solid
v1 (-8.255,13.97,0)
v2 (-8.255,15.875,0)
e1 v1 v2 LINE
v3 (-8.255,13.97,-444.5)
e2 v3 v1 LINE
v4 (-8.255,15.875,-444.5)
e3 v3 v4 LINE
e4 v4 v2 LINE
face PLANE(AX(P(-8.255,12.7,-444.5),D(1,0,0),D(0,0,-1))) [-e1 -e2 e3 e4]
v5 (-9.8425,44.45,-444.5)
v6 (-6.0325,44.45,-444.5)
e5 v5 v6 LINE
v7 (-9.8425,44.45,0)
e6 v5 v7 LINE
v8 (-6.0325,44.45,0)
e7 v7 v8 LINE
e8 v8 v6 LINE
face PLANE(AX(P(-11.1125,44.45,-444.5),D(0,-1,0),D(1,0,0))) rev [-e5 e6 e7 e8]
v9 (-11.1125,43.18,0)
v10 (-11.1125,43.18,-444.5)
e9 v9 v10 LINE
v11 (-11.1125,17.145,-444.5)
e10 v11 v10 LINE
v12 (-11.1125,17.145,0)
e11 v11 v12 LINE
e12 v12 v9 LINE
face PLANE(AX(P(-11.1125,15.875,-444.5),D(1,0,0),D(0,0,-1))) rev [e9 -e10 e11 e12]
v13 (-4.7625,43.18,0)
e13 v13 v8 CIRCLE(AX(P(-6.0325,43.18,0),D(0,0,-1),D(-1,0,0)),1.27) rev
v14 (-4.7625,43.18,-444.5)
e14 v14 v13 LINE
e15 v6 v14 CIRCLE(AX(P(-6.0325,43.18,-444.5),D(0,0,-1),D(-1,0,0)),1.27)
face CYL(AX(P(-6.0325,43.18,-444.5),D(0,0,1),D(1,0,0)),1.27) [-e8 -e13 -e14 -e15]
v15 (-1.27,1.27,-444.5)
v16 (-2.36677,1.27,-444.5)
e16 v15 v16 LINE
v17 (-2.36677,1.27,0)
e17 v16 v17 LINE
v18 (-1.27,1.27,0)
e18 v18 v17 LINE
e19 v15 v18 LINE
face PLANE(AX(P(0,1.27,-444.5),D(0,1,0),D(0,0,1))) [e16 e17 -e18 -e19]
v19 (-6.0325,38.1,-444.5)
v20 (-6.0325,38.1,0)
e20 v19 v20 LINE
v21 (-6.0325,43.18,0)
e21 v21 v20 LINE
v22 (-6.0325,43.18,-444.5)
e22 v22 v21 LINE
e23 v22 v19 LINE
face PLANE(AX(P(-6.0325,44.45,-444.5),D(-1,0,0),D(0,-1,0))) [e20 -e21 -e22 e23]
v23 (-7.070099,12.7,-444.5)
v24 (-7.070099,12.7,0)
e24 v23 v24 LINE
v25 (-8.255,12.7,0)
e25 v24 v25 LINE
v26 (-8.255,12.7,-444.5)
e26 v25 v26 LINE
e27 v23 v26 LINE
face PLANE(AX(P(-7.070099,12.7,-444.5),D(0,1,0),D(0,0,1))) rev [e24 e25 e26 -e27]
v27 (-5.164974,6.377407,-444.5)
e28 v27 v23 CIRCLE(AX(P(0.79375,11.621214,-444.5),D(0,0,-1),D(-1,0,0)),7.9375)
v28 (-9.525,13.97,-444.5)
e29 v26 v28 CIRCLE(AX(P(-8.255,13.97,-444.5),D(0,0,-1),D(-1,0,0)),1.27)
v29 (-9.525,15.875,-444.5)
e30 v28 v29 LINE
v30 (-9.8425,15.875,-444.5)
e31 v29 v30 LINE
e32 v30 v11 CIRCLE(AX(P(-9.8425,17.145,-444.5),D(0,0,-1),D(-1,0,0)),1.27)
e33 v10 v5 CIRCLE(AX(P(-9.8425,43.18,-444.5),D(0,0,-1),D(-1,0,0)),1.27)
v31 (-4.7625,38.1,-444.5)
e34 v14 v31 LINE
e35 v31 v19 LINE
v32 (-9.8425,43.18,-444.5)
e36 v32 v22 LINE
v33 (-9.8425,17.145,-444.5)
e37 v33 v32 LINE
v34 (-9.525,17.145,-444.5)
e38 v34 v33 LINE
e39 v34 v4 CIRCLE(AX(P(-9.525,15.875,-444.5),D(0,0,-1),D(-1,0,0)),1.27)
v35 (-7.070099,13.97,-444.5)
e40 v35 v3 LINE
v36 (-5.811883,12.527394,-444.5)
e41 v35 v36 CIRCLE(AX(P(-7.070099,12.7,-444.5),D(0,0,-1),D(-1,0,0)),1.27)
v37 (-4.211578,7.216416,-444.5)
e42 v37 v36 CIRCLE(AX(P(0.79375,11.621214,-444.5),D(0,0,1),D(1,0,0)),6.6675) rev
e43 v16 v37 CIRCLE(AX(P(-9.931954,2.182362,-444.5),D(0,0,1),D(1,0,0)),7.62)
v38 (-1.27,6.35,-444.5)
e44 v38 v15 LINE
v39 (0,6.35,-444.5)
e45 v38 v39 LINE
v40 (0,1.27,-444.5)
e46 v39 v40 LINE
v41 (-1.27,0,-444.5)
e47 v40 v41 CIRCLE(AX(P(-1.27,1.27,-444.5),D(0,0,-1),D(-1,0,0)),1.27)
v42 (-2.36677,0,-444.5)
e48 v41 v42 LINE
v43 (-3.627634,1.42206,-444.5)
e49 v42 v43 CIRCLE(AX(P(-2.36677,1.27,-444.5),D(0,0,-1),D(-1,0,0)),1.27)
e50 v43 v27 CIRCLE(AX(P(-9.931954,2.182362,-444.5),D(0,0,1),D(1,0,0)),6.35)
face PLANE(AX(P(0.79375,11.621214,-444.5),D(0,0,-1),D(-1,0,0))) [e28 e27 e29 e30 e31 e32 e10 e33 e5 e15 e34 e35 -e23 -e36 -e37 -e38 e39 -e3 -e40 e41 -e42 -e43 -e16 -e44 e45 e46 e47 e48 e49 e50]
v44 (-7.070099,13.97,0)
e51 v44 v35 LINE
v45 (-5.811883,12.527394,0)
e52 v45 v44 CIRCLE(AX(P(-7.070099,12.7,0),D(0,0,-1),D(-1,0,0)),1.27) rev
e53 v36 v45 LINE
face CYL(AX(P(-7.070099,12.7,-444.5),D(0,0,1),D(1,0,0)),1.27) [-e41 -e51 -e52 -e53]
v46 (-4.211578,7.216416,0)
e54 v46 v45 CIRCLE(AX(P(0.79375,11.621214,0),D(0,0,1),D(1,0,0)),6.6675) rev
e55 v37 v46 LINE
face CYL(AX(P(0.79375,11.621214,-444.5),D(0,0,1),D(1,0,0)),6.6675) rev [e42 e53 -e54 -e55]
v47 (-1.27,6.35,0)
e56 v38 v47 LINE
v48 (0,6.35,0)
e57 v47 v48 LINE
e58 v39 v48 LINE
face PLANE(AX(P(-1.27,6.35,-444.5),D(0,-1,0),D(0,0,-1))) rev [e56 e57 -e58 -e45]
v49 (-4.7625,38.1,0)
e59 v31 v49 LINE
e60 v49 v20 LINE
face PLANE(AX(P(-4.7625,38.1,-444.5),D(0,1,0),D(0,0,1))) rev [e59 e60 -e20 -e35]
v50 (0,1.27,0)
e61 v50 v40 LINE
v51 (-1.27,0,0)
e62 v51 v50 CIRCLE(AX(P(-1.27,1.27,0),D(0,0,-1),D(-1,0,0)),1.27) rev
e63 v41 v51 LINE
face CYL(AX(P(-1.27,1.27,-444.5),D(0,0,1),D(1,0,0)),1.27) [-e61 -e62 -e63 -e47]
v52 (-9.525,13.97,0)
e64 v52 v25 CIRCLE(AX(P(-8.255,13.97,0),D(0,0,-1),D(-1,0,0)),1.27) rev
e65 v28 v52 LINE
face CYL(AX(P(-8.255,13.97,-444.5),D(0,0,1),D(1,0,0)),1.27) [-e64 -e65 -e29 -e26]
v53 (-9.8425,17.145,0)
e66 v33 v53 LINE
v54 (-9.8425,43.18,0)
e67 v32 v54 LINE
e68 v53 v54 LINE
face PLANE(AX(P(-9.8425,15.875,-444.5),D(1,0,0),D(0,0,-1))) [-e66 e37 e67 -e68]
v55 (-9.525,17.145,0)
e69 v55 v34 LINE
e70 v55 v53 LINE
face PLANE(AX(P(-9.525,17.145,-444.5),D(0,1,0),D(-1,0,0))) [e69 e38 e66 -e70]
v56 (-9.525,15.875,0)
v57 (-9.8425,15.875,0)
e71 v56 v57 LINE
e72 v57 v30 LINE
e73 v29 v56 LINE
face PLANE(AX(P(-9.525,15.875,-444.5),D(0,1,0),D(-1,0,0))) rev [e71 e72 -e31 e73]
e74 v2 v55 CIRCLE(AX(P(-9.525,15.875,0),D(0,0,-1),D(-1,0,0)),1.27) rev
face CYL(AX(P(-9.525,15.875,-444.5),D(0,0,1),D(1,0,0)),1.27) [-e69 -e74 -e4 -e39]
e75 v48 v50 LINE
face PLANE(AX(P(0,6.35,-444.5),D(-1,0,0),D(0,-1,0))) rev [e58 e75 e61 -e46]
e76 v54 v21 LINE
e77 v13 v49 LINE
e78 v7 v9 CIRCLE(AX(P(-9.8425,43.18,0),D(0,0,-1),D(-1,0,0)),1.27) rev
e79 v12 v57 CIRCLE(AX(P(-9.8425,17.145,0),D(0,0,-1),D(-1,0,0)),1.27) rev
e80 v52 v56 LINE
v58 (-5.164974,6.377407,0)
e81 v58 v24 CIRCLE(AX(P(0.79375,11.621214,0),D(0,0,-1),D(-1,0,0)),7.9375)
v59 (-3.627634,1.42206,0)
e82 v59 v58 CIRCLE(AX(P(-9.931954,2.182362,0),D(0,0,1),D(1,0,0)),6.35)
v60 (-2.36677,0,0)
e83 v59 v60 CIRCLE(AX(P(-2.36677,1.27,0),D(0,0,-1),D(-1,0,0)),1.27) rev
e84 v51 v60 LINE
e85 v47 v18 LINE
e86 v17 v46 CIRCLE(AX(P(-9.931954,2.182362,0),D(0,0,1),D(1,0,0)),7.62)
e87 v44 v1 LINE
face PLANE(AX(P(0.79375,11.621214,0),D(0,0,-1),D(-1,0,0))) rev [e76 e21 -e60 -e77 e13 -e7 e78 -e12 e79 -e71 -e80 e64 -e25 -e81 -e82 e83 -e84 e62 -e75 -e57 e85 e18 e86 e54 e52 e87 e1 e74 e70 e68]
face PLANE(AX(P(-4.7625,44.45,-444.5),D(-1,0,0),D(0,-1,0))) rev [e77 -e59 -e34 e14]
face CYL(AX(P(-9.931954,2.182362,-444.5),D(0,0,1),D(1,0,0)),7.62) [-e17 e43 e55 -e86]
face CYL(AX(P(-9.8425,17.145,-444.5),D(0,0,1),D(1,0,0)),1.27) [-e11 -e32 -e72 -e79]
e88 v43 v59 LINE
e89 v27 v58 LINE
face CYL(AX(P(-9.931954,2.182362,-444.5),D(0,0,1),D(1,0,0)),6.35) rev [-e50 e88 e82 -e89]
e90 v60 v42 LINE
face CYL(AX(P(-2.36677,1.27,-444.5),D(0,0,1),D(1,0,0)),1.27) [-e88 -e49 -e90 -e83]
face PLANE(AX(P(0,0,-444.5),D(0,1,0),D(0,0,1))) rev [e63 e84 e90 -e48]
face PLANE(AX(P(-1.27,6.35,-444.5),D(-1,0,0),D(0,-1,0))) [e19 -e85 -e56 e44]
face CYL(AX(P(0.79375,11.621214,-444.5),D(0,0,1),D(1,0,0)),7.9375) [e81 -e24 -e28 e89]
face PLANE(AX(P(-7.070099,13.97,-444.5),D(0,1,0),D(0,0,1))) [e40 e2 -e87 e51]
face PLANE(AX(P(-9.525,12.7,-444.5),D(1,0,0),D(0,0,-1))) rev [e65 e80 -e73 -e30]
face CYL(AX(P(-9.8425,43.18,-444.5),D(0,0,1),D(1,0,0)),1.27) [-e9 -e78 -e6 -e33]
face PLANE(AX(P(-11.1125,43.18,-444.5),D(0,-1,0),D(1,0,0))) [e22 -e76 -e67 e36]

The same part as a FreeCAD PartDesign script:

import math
import FreeCAD as App
import Part
import Sketcher
from FreeCAD import Vector
Q = App.Units.Quantity


def edges_at(feature, points):
    """Names of the edges that pass closest to the given points."""
    edges = feature.Shape.Edges
    near = lambda p: min(range(len(edges)), key=lambda i: edges[i].distToShape(Part.Vertex(*p))[0])
    return sorted({f"Edge{near(p) + 1}" for p in points})

doc = App.newDocument("Part")
body = doc.addObject("PartDesign::Body", "Body")

# Sketch on XY plane
sketch1 = doc.addObject("Sketcher::SketchObject", "Sketch")
body.addObject(sketch1)
sketch1.AttachmentSupport = (doc.XY_Plane, [""])
sketch1.MapMode = "FlatFace"
sketch1.addGeometry([
    Part.LineSegment(Vector(0, 0, 0), Vector(0, 6.3, 0)),  # 0
    Part.LineSegment(Vector(0, 6.3, 0), Vector(-1.3, 6.3, 0)),  # 1
    Part.LineSegment(Vector(-1.3, 6.3, 0), Vector(-1.3, 1.3, 0)),  # 2
    Part.LineSegment(Vector(-1.3, 1.3, 0), Vector(-2.4, 1.3, 0)),  # 3
    Part.ArcOfCircle(Part.Circle(Vector(-9.9, 2.2, 0), Vector(0, 0, 1), 7.6), math.radians(-7), math.radians(41)),  # 4
    Part.ArcOfCircle(Part.Circle(Vector(0.8, 11.6, 0), Vector(0, 0, 1), 6.7), math.radians(159), math.radians(221)),  # 5
    Part.LineSegment(Vector(-5.4, 14, 0), Vector(-8.3, 14, 0)),  # 6
    Part.LineSegment(Vector(-8.3, 14, 0), Vector(-8.3, 17.1, 0)),  # 7
    Part.LineSegment(Vector(-8.3, 17.1, 0), Vector(-9.8, 17.1, 0)),  # 8
    Part.LineSegment(Vector(-9.8, 17.1, 0), Vector(-9.8, 43.2, 0)),  # 9
    Part.LineSegment(Vector(-9.8, 43.2, 0), Vector(-6, 43.2, 0)),  # 10
    Part.LineSegment(Vector(-6, 43.2, 0), Vector(-6, 38.1, 0)),  # 11
    Part.LineSegment(Vector(-6, 38.1, 0), Vector(-4.8, 38.1, 0)),  # 12
    Part.LineSegment(Vector(-4.8, 38.1, 0), Vector(-4.8, 44.5, 0)),  # 13
    Part.LineSegment(Vector(-4.8, 44.5, 0), Vector(-11.1, 44.5, 0)),  # 14
    Part.LineSegment(Vector(-11.1, 44.5, 0), Vector(-11.1, 15.9, 0)),  # 15
    Part.LineSegment(Vector(-11.1, 15.9, 0), Vector(-9.5, 15.9, 0)),  # 16
    Part.LineSegment(Vector(-9.5, 15.9, 0), Vector(-9.5, 12.7, 0)),  # 17
    Part.LineSegment(Vector(-9.5, 12.7, 0), Vector(-7.1, 12.7, 0)),  # 18
    Part.ArcOfCircle(Part.Circle(Vector(0.8, 11.6, 0), Vector(0, 0, 1), 7.9), math.radians(172), math.radians(221)),  # 19
    Part.ArcOfCircle(Part.Circle(Vector(-9.9, 2.2, 0), Vector(0, 0, 1), 6.3), math.radians(-20), math.radians(41)),  # 20
    Part.LineSegment(Vector(-4, 0, 0), Vector(0, 0, 0)),  # 21
], False)
sketch1.addConstraint([
    Sketcher.Constraint("Coincident", 0, 2, 1, 1),
    Sketcher.Constraint("Coincident", 1, 2, 2, 1),
    Sketcher.Constraint("Coincident", 2, 2, 3, 1),
    Sketcher.Constraint("Coincident", 3, 2, 4, 1),
    Sketcher.Constraint("Tangent", 4, 2, 5, 2),
    Sketcher.Constraint("Coincident", 5, 1, 6, 1),
    Sketcher.Constraint("Coincident", 6, 2, 7, 1),
    Sketcher.Constraint("Coincident", 7, 2, 8, 1),
    Sketcher.Constraint("Coincident", 8, 2, 9, 1),
    Sketcher.Constraint("Coincident", 9, 2, 10, 1),
    Sketcher.Constraint("Coincident", 10, 2, 11, 1),
    Sketcher.Constraint("Coincident", 11, 2, 12, 1),
    Sketcher.Constraint("Coincident", 12, 2, 13, 1),
    Sketcher.Constraint("Coincident", 13, 2, 14, 1),
    Sketcher.Constraint("Coincident", 14, 2, 15, 1),
    Sketcher.Constraint("Coincident", 15, 2, 16, 1),
    Sketcher.Constraint("Coincident", 16, 2, 17, 1),
    Sketcher.Constraint("Coincident", 17, 2, 18, 1),
    Sketcher.Constraint("Coincident", 18, 2, 19, 1),
    Sketcher.Constraint("Tangent", 19, 2, 20, 2),
    Sketcher.Constraint("Coincident", 20, 1, 21, 1),
    Sketcher.Constraint("Coincident", 21, 2, 0, 1),
    Sketcher.Constraint("Vertical", 0),
    Sketcher.Constraint("Horizontal", 1),
    Sketcher.Constraint("Vertical", 2),
    Sketcher.Constraint("Horizontal", 3),
    Sketcher.Constraint("Horizontal", 6),
    Sketcher.Constraint("Vertical", 7),
    Sketcher.Constraint("Horizontal", 8),
    Sketcher.Constraint("Vertical", 9),
    Sketcher.Constraint("Horizontal", 10),
    Sketcher.Constraint("Vertical", 11),
    Sketcher.Constraint("Horizontal", 12),
    Sketcher.Constraint("Vertical", 13),
    Sketcher.Constraint("Horizontal", 14),
    Sketcher.Constraint("Vertical", 15),
    Sketcher.Constraint("Horizontal", 16),
    Sketcher.Constraint("Vertical", 17),
    Sketcher.Constraint("Horizontal", 18),
    Sketcher.Constraint("Horizontal", 21),
    Sketcher.Constraint("Coincident", 21, 2, -1, 1),
    Sketcher.Constraint("Coincident", 19, 3, 5, 3),
    Sketcher.Constraint("Coincident", 20, 3, 4, 3),
    Sketcher.Constraint("Equal", 1, 12),
    Sketcher.Constraint("Equal", 8, 16),
    Sketcher.Constraint("Equal", 14, 0),
    Sketcher.Constraint("Equal", 2, 11),
    Sketcher.Constraint("Equal", 0, 13),
    Sketcher.Constraint("Equal", 7, 17),
    Sketcher.Constraint("Radius", 4, Q("0.3 in")),
    Sketcher.Constraint("Radius", 20, Q("0.25 in")),
    Sketcher.Constraint("DistanceY", 2, 2, 2, 1, Q("0.2 in")),
    Sketcher.Constraint("Radius", 19, Q("0.3125 in")),
    Sketcher.Constraint("DistanceX", 1, 2, 1, 1, Q("0.05 in")),
    Sketcher.Constraint("DistanceX", 10, 1, 10, 2, Q("0.15 in")),
    Sketcher.Constraint("DistanceX", 14, 2, 14, 1, Q("0.25 in")),
    Sketcher.Constraint("DistanceY", -1, 1, 9, 2, Q("1.7 in")),
    Sketcher.Constraint("DistanceY", -1, 1, 17, 2, Q("0.5 in")),
    Sketcher.Constraint("DistanceY", 1, 2, 5, 1, Q("0.3 in")),
    Sketcher.Constraint("DistanceX", 8, 2, 8, 1, Q("0.0625 in")),
    Sketcher.Constraint("DistanceX", 21, 1, 21, 2, Q("0.15625 in")),
    Sketcher.Constraint("DistanceY", 7, 1, 7, 2, Q("0.125 in")),
    Sketcher.Constraint("DistanceX", -1, 1, 5, 3, Q("0.03125 in")),
    Sketcher.Constraint("DistanceX", 6, 2, -1, 1, Q("0.325 in")),
    Sketcher.Constraint("DistanceX", 18, 1, 18, 2, Q("2.454901 mm")),
])
pad1 = doc.addObject("PartDesign::Pad", "Pad")
body.addObject(pad1)
pad1.Profile = sketch1
pad1.Length = Q("17.5 in")
pad1.Reversed = True
doc.recompute()

fillet = doc.addObject("PartDesign::Fillet", "Fillet")
body.addObject(fillet)
fillet.Base = (pad1, edges_at(pad1, [
    (-8.255, 17.145, -222.25),
    (-5.446, 13.97, -222.25),
    (0, 0, -222.25),
    (-3.969, 0, -222.25),
    (-9.525, 12.7, -222.25),
    (-11.113, 15.875, -222.25),
    (-11.113, 44.45, -222.25),
    (-4.763, 44.45, -222.25),
]))
fillet.Radius = Q("0.05 in")

doc.recompute()
